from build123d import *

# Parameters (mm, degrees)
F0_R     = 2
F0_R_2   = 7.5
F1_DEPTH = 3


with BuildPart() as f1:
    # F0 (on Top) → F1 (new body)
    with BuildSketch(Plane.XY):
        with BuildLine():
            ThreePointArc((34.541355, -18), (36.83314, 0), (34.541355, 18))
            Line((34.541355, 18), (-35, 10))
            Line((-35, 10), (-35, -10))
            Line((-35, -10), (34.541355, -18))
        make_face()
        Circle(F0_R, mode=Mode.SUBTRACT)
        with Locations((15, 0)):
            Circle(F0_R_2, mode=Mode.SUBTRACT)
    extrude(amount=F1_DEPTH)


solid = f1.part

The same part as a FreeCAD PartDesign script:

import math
import FreeCAD as App
import Part
import Sketcher

V = App.Vector
Q = App.Units.Quantity

doc = App.newDocument("Part")
body = doc.addObject("PartDesign::Body", "Body")

sketch1 = doc.addObject("Sketcher::SketchObject", "Sketch")
body.addObject(sketch1)
sketch1.AttachmentSupport = (doc.XY_Plane, [""])
sketch1.MapMode = "FlatFace"
sketch1.addGeometry(Part.ArcOfCircle(Part.Circle(V(-35.000012, 0, 0), V(0, 0, 1), 71.833152), math.radians(-14.511877), math.radians(14.511877)), False)
sketch1.addGeometry(Part.LineSegment(V(34.541355, 18, 0), V(-35, 10, 0)), False)
sketch1.addGeometry(Part.LineSegment(V(-35, 10, 0), V(-35, -10, 0)), False)
sketch1.addGeometry(Part.LineSegment(V(-35, -10, 0), V(34.541355, -18, 0)), False)
sketch1.addGeometry(Part.Circle(V(0, 0, 0), V(0, 0, 1), 2), False)
sketch1.addGeometry(Part.Circle(V(15, 0, 0), V(0, 0, 1), 7.5), False)
sketch1.addConstraint(Sketcher.Constraint("Coincident", 0, 2, 1, 1))
sketch1.addConstraint(Sketcher.Constraint("Coincident", 1, 2, 2, 1))
sketch1.addConstraint(Sketcher.Constraint("Coincident", 2, 2, 3, 1))
sketch1.addConstraint(Sketcher.Constraint("Coincident", 3, 2, 0, 1))
sketch1.addConstraint(Sketcher.Constraint("Vertical", 2))
sketch1.addConstraint(Sketcher.Constraint("Coincident", 4, 3, -1, 1))
sketch1.addConstraint(Sketcher.Constraint("Symmetric", 0, 2, 3, 2, -1))
sketch1.addConstraint(Sketcher.Constraint("PointOnObject", 5, 3, -1))
sketch1.addConstraint(Sketcher.Constraint("Equal", 1, 3))
sketch1.addConstraint(Sketcher.Constraint("Diameter", 4, Q("4 mm")))
sketch1.addConstraint(Sketcher.Constraint("Diameter", 5, Q("15 mm")))
sketch1.addConstraint(Sketcher.Constraint("DistanceY", 2, 2, 2, 1, Q("20 mm")))
sketch1.addConstraint(Sketcher.Constraint("Distance", 1, Q("70 mm")))
sketch1.addConstraint(Sketcher.Constraint("DistanceX", -1, 1, 5, 3, Q("15 mm")))
sketch1.addConstraint(Sketcher.Constraint("DistanceY", -1, 1, 0, 2, Q("18 mm")))
sketch1.addConstraint(Sketcher.Constraint("DistanceX", 1, 2, -1, 1, Q("35 mm")))
sketch1.addConstraint(Sketcher.Constraint("Radius", 0, Q("71.833152 mm")))
pad1 = doc.addObject("PartDesign::Pad", "Pad")
body.addObject(pad1)
pad1.Profile = sketch1
pad1.Length = 3

doc.recompute()
